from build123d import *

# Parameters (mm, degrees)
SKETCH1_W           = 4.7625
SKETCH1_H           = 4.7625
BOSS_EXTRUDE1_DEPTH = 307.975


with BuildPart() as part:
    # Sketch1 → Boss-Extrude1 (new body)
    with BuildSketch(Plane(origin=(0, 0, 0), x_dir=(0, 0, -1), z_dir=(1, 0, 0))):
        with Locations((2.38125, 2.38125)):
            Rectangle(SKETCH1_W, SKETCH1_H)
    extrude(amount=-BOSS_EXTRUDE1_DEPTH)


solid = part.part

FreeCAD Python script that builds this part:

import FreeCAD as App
import Part
import Sketcher

V = App.Vector
Q = App.Units.Quantity

doc = App.newDocument("Part")
body = doc.addObject("PartDesign::Body", "Body")

# Sketch on YZ plane
sketch1 = body.newObject("Sketcher::SketchObject", "Sketch")
sketch1.AttachmentSupport = (doc.getObject("YZ_Plane"), [""])
sketch1.MapMode = "FlatFace"
sketch1.addGeometry(Part.LineSegment(V(4.7625, 0, 0), V(0, 0, 0)), False)
sketch1.addGeometry(Part.LineSegment(V(0, 0, 0), V(0, -4.7625, 0)), False)
sketch1.addGeometry(Part.LineSegment(V(0, -4.7625, 0), V(4.7625, -4.7625, 0)), False)
sketch1.addGeometry(Part.LineSegment(V(4.7625, -4.7625, 0), V(4.7625, 0, 0)), False)
sketch1.addConstraint(Sketcher.Constraint("Coincident", 0, 2, 1, 1))
sketch1.addConstraint(Sketcher.Constraint("Coincident", 1, 2, 2, 1))
sketch1.addConstraint(Sketcher.Constraint("Coincident", 2, 2, 3, 1))
sketch1.addConstraint(Sketcher.Constraint("Coincident", 3, 2, 0, 1))
sketch1.addConstraint(Sketcher.Constraint("Horizontal", 0))
sketch1.addConstraint(Sketcher.Constraint("Vertical", 1))
sketch1.addConstraint(Sketcher.Constraint("Horizontal", 2))
sketch1.addConstraint(Sketcher.Constraint("Vertical", 3))
sketch1.addConstraint(Sketcher.Constraint("Coincident", 0, 2, -1, 1))
sketch1.addConstraint(Sketcher.Constraint("Equal", 2, 1))
sketch1.addConstraint(Sketcher.Constraint("DistanceX", 0, 2, 0, 1, Q("0.1875 in")))
pad1 = body.newObject("PartDesign::Pad", "Pad")
pad1.Profile = sketch1
pad1.Length = Q("12.125 in")
pad1.Reversed = True

doc.recompute()
